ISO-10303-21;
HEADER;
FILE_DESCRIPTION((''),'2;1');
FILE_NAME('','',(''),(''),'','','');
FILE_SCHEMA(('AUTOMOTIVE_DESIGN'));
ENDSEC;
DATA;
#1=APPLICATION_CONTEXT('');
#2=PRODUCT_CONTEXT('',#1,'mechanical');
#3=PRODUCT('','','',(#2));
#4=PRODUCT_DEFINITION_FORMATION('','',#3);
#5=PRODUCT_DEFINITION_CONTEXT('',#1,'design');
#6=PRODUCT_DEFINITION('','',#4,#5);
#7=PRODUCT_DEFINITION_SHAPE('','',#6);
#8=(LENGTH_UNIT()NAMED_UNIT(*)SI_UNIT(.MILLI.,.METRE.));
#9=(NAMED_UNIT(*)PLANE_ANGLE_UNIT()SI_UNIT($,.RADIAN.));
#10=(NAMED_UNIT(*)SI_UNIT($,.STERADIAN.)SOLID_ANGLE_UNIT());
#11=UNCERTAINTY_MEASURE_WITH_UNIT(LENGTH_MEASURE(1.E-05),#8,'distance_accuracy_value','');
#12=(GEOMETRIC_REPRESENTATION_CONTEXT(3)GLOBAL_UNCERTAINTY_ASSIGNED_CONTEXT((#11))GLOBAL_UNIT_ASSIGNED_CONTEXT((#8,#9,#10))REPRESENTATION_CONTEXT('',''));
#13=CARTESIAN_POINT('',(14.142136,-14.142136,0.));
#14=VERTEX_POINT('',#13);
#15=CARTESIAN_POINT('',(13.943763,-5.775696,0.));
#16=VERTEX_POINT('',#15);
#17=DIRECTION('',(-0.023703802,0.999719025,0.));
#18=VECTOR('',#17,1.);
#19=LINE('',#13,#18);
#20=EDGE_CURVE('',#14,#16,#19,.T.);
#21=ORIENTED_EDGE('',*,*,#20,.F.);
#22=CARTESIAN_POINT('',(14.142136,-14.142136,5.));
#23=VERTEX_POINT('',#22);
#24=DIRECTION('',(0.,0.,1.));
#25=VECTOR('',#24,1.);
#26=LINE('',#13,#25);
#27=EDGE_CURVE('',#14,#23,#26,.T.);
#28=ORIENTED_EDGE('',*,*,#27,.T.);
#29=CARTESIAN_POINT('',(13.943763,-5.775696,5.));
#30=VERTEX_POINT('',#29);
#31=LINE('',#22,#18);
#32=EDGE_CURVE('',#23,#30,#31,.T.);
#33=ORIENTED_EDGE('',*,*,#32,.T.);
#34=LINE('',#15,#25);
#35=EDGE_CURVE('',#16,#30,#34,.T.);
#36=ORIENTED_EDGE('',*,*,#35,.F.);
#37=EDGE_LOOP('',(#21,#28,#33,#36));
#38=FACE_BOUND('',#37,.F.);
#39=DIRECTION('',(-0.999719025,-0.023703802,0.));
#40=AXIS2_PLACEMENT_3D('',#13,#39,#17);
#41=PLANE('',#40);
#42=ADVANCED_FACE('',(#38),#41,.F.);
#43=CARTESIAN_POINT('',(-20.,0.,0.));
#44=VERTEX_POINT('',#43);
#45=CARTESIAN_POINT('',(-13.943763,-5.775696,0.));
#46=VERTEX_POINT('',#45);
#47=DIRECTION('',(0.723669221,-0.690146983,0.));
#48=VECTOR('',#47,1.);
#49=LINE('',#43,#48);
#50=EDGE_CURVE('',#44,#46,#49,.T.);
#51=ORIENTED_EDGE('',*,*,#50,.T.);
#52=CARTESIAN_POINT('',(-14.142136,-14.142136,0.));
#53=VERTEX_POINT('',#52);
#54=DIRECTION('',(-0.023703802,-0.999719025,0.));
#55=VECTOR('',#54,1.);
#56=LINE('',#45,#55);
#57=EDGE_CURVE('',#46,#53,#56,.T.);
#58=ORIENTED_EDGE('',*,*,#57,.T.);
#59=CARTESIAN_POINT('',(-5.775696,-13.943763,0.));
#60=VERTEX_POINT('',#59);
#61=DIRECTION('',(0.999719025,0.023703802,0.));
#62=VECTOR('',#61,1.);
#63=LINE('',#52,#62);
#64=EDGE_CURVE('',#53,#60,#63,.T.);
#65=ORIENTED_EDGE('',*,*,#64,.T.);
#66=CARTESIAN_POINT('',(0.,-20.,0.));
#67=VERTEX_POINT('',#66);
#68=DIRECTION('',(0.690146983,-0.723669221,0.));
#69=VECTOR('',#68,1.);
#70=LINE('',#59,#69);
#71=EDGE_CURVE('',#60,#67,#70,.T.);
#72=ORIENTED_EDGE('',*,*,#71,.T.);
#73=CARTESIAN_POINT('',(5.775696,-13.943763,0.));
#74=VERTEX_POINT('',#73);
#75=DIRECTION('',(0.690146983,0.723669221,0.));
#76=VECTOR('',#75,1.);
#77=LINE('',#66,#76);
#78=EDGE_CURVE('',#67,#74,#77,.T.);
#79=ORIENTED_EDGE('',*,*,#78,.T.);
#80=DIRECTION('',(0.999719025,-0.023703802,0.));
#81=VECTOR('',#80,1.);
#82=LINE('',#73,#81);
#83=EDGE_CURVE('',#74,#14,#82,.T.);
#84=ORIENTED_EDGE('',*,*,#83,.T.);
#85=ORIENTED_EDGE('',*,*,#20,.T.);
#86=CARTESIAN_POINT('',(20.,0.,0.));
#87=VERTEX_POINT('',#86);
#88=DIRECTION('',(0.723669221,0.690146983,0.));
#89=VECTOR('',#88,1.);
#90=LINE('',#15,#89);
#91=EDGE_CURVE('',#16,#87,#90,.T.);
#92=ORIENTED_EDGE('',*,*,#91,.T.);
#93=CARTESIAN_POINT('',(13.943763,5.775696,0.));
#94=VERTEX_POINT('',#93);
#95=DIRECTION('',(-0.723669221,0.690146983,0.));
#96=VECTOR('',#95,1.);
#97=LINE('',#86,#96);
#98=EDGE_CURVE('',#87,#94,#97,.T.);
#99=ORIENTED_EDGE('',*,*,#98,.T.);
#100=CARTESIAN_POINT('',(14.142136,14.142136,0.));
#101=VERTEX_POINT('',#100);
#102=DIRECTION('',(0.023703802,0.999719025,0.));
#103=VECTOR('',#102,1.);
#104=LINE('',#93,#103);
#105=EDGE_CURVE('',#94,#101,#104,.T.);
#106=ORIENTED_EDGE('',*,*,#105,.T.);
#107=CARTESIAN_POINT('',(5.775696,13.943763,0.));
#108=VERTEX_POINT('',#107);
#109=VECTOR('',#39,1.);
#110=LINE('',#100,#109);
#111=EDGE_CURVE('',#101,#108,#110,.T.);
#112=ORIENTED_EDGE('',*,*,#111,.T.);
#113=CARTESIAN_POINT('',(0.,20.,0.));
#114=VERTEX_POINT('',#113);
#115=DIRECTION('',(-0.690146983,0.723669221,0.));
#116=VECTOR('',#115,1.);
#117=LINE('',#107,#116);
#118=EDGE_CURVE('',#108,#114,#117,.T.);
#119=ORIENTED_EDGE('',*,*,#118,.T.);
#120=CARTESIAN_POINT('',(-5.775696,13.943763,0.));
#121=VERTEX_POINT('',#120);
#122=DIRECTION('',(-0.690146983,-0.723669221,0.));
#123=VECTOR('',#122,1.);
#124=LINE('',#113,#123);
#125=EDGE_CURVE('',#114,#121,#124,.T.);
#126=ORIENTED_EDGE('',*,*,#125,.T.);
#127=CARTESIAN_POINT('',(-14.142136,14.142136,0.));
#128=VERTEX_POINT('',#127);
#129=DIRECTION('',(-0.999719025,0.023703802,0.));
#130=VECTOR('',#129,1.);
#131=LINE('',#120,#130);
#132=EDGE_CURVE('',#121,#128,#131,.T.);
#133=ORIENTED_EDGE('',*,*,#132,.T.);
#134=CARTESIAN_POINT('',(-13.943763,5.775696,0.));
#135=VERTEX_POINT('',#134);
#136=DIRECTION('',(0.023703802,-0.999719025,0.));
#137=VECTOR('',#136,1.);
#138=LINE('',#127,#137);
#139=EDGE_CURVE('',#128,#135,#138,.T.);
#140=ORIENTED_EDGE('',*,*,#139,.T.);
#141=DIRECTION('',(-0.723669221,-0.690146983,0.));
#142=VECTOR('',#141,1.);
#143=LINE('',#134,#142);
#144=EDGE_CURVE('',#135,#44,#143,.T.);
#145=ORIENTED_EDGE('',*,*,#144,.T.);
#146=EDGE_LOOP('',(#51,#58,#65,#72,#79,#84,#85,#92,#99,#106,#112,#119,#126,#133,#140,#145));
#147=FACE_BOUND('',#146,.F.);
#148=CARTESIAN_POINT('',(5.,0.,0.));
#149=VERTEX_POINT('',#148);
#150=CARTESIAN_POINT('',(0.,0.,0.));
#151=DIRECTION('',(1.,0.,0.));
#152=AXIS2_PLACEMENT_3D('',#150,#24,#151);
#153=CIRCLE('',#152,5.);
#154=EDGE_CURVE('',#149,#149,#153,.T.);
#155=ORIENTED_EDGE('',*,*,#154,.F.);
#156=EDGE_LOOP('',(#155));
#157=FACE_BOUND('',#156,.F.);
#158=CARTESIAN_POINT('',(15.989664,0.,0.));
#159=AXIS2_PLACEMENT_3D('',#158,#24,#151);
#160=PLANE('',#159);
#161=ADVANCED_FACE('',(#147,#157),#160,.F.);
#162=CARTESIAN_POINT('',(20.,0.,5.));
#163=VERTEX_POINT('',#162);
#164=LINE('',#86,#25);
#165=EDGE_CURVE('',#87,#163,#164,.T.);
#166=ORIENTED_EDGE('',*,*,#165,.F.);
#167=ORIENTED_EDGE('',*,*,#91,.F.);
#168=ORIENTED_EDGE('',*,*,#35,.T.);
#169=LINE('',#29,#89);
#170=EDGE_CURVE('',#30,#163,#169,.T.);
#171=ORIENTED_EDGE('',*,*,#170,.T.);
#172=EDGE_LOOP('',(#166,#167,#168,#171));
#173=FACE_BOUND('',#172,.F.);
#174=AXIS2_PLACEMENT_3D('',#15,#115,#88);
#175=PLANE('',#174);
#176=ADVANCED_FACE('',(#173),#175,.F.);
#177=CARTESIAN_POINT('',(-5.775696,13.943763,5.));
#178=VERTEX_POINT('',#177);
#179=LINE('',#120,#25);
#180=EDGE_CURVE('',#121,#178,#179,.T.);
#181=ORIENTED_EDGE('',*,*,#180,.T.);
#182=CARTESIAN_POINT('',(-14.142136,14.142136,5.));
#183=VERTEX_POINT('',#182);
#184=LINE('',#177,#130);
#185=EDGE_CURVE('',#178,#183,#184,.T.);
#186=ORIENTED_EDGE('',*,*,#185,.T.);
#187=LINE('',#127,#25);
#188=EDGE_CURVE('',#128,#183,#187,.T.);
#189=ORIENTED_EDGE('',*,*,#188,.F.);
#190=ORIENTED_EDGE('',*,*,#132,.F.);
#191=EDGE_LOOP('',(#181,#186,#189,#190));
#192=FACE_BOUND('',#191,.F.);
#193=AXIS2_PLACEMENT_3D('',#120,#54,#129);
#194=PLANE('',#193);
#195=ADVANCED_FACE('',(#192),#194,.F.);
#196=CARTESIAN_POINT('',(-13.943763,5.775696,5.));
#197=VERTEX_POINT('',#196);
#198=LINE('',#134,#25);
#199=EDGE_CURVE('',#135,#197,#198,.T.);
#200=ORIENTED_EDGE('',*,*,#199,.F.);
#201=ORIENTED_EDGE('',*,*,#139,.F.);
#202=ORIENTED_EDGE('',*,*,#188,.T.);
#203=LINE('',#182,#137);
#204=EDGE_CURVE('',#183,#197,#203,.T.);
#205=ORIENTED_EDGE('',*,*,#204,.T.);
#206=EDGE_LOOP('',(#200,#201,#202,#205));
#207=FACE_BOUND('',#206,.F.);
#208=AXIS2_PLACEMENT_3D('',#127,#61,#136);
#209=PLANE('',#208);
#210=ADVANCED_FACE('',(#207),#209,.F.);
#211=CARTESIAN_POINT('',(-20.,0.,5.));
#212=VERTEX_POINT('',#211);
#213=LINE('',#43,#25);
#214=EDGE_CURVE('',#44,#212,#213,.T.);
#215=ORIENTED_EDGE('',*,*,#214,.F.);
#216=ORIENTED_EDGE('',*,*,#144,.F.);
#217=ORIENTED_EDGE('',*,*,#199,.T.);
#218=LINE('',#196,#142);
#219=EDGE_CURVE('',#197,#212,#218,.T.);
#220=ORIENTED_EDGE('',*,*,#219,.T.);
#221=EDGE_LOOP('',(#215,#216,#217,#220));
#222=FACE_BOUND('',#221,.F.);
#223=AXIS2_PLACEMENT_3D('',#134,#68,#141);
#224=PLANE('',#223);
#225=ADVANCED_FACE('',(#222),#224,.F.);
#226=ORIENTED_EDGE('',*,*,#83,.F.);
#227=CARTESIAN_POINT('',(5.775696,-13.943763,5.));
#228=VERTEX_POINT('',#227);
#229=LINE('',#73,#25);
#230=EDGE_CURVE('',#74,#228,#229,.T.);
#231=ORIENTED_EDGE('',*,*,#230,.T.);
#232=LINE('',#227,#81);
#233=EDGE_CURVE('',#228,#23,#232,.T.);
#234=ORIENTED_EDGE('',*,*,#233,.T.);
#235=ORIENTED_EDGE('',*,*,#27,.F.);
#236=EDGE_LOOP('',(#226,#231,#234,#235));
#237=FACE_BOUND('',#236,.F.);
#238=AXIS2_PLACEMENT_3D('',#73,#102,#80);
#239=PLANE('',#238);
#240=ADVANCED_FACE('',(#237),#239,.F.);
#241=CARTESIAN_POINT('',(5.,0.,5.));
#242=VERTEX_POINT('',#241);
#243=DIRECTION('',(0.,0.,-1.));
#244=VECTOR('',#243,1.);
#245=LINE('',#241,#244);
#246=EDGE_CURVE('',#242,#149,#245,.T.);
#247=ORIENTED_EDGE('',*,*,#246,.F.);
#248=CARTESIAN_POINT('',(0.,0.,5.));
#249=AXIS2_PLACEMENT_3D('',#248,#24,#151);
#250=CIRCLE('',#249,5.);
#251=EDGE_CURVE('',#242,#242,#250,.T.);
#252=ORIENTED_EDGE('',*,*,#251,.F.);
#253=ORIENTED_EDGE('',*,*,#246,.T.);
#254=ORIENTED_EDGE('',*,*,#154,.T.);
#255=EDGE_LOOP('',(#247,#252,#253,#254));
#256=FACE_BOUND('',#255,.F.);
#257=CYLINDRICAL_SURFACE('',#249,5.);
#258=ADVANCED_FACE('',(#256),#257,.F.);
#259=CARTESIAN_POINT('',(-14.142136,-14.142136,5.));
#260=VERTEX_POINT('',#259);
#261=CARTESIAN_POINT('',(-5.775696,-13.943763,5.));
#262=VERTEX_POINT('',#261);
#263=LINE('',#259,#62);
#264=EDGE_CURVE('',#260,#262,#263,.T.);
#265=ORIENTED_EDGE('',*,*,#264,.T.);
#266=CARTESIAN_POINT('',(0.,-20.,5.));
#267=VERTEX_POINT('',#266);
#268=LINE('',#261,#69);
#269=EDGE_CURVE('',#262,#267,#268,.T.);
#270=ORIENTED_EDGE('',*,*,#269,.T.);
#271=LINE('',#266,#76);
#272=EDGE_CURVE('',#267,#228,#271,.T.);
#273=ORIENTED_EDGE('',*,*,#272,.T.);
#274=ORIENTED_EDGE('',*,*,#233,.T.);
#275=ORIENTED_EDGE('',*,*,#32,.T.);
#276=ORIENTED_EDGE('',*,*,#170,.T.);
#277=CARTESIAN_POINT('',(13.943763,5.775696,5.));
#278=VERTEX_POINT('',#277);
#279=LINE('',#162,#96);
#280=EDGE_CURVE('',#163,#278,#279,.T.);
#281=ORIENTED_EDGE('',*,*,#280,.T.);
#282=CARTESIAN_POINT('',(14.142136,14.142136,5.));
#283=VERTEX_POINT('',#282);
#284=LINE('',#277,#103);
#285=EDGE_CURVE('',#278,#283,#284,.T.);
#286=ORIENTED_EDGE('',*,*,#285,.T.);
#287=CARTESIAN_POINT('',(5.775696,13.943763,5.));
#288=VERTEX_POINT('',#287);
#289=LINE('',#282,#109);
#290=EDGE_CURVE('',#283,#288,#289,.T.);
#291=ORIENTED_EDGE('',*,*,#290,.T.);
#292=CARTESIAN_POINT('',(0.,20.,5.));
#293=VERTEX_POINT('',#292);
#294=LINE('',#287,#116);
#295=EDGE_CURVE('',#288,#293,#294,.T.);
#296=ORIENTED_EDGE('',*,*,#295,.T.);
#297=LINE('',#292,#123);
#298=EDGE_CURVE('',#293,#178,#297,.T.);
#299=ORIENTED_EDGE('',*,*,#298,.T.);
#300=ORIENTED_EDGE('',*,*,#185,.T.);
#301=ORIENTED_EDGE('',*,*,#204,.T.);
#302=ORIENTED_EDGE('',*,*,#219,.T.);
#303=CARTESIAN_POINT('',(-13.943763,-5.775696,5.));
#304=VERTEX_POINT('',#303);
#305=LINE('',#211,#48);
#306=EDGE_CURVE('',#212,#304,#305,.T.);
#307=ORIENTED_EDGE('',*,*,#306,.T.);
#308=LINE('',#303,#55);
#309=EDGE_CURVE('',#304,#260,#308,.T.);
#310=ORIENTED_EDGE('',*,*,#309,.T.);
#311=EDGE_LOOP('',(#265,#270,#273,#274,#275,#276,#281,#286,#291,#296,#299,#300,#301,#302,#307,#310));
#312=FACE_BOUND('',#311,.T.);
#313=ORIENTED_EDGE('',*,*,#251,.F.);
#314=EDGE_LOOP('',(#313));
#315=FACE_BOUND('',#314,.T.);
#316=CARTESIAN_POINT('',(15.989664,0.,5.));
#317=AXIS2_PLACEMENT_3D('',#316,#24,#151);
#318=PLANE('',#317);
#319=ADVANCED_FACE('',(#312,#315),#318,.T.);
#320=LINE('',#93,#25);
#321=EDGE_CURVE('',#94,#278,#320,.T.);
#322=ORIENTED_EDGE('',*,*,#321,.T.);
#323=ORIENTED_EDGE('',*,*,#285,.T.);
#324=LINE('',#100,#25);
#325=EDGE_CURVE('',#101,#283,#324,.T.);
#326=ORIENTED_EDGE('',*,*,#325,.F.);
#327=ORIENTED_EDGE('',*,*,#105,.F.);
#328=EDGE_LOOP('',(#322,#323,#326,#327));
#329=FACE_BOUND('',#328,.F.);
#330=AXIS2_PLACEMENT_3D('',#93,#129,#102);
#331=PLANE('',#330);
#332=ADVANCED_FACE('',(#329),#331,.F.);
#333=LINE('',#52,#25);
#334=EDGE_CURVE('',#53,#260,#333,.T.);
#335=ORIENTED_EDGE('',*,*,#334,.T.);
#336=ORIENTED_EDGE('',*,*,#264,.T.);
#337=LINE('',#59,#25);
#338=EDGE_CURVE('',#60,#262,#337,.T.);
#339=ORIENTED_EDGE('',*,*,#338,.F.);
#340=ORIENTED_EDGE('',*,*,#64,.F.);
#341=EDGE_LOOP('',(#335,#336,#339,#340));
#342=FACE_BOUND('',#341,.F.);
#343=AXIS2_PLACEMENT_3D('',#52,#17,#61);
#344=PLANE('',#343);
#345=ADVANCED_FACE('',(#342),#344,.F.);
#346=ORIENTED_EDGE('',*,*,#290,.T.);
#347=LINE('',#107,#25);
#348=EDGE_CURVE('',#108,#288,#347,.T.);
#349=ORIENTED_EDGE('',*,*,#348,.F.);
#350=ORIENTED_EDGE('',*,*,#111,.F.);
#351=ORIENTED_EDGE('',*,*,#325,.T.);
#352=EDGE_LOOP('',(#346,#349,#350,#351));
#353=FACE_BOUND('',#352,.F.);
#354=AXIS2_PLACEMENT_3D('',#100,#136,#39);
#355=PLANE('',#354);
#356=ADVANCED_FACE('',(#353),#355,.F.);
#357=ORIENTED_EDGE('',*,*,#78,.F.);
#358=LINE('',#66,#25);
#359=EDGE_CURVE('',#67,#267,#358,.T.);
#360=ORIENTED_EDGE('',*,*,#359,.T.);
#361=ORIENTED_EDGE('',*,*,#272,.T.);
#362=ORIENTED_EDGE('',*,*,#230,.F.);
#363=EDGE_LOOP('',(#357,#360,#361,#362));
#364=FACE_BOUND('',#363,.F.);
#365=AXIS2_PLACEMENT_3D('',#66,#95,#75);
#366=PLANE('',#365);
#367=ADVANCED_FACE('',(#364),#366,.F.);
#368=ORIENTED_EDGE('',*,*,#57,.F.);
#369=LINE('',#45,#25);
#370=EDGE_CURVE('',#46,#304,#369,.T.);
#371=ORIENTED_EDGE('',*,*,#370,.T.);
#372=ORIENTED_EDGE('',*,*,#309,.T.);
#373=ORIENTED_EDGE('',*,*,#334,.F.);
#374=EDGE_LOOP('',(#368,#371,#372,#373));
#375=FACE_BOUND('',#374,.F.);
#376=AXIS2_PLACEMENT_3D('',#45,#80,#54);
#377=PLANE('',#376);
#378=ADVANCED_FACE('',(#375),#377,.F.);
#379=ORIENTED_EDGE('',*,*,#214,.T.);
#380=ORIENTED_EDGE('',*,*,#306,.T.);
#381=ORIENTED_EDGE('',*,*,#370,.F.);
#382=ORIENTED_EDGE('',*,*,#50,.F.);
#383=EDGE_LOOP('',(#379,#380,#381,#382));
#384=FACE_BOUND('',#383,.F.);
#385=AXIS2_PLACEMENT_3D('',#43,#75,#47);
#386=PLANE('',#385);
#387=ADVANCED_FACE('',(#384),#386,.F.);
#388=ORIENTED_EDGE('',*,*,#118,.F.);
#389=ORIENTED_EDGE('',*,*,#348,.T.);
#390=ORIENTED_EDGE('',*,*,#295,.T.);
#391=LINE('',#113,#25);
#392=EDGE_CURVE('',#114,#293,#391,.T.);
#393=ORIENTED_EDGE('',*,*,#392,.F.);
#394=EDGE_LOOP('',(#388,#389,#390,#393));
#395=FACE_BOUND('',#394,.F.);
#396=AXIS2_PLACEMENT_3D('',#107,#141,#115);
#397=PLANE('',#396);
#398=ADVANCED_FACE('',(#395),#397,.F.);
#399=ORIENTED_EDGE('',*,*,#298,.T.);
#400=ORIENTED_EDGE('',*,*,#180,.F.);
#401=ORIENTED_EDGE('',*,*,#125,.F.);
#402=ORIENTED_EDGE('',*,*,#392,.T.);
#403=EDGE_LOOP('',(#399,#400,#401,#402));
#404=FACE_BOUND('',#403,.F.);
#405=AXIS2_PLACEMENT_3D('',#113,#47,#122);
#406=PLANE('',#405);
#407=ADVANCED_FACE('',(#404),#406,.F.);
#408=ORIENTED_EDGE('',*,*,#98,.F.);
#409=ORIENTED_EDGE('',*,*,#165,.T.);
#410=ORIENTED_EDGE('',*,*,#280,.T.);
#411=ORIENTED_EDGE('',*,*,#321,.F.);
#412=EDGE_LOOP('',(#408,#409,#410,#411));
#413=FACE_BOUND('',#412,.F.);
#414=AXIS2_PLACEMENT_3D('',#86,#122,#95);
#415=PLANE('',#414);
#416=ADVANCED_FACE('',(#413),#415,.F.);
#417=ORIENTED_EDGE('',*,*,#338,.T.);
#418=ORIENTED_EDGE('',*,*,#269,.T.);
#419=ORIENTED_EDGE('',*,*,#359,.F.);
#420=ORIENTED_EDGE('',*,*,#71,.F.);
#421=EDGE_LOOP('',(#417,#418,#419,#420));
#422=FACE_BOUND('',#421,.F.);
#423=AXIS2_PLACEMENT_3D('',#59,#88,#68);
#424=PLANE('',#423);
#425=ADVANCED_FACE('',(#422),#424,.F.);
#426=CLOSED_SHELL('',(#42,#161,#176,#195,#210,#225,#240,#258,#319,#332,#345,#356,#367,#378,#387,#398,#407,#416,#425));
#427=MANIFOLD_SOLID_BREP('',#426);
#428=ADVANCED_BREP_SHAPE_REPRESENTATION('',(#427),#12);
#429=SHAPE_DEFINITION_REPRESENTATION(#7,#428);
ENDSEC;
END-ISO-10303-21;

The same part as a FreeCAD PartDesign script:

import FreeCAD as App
import Part
import Sketcher
from FreeCAD import Vector
Q = App.Units.Quantity

doc = App.newDocument("Part")
body = doc.addObject("PartDesign::Body", "Body")

# Sketch on XY plane
sketch1 = doc.addObject("Sketcher::SketchObject", "Sketch")
body.addObject(sketch1)
sketch1.AttachmentSupport = (doc.XY_Plane, [""])
sketch1.MapMode = "FlatFace"
sketch1.addGeometry(Part.LineSegment(Vector(-14, -6, 0), Vector(-14, -14, 0)), False)
sketch1.addGeometry(Part.LineSegment(Vector(-14, -14, 0), Vector(-6, -14, 0)), False)
sketch1.addGeometry(Part.LineSegment(Vector(-6, -14, 0), Vector(0, -20, 0)), False)
sketch1.addGeometry(Part.LineSegment(Vector(0, -20, 0), Vector(6, -14, 0)), False)
sketch1.addGeometry(Part.LineSegment(Vector(6, -14, 0), Vector(14, -14, 0)), False)
sketch1.addGeometry(Part.LineSegment(Vector(14, -14, 0), Vector(14, -6, 0)), False)
sketch1.addGeometry(Part.LineSegment(Vector(14, -6, 0), Vector(20, 0, 0)), False)
sketch1.addGeometry(Part.LineSegment(Vector(20, 0, 0), Vector(14, 6, 0)), False)
sketch1.addGeometry(Part.LineSegment(Vector(14, 6, 0), Vector(14, 14, 0)), False)
sketch1.addGeometry(Part.LineSegment(Vector(14, 14, 0), Vector(6, 14, 0)), False)
sketch1.addGeometry(Part.LineSegment(Vector(6, 14, 0), Vector(0, 20, 0)), False)
sketch1.addGeometry(Part.LineSegment(Vector(0, 20, 0), Vector(-6, 14, 0)), False)
sketch1.addGeometry(Part.LineSegment(Vector(-6, 14, 0), Vector(-14, 14, 0)), False)
sketch1.addGeometry(Part.LineSegment(Vector(-14, 14, 0), Vector(-14, 6, 0)), False)
sketch1.addGeometry(Part.LineSegment(Vector(-14, 6, 0), Vector(-20, 0, 0)), False)
sketch1.addGeometry(Part.LineSegment(Vector(-20, 0, 0), Vector(-14, -6, 0)), False)
sketch1.addConstraint(Sketcher.Constraint("Coincident", 0, 2, 1, 1))
sketch1.addConstraint(Sketcher.Constraint("Coincident", 1, 2, 2, 1))
sketch1.addConstraint(Sketcher.Constraint("Coincident", 2, 2, 3, 1))
sketch1.addConstraint(Sketcher.Constraint("Coincident", 3, 2, 4, 1))
sketch1.addConstraint(Sketcher.Constraint("Coincident", 4, 2, 5, 1))
sketch1.addConstraint(Sketcher.Constraint("Coincident", 5, 2, 6, 1))
sketch1.addConstraint(Sketcher.Constraint("Coincident", 6, 2, 7, 1))
sketch1.addConstraint(Sketcher.Constraint("Coincident", 7, 2, 8, 1))
sketch1.addConstraint(Sketcher.Constraint("Coincident", 8, 2, 9, 1))
sketch1.addConstraint(Sketcher.Constraint("Coincident", 9, 2, 10, 1))
sketch1.addConstraint(Sketcher.Constraint("Coincident", 10, 2, 11, 1))
sketch1.addConstraint(Sketcher.Constraint("Coincident", 11, 2, 12, 1))
sketch1.addConstraint(Sketcher.Constraint("Coincident", 12, 2, 13, 1))
sketch1.addConstraint(Sketcher.Constraint("Coincident", 13, 2, 14, 1))
sketch1.addConstraint(Sketcher.Constraint("Coincident", 14, 2, 15, 1))
sketch1.addConstraint(Sketcher.Constraint("Coincident", 15, 2, 0, 1))
sketch1.addConstraint(Sketcher.Constraint("Symmetric", 0, 2, 8, 2, -1, 1))
sketch1.addConstraint(Sketcher.Constraint("Symmetric", 1, 2, 9, 2, -1, 1))
sketch1.addConstraint(Sketcher.Constraint("Symmetric", 2, 2, 10, 2, -1, 1))
sketch1.addConstraint(Sketcher.Constraint("Symmetric", 3, 2, 11, 2, -1, 1))
sketch1.addConstraint(Sketcher.Constraint("Symmetric", 4, 2, 12, 2, -1, 1))
sketch1.addConstraint(Sketcher.Constraint("Symmetric", 5, 2, 13, 2, -1, 1))
sketch1.addConstraint(Sketcher.Constraint("Symmetric", 6, 2, 14, 2, -1, 1))
sketch1.addConstraint(Sketcher.Constraint("Symmetric", 7, 2, 15, 2, -1, 1))
sketch1.addConstraint(Sketcher.Constraint("Symmetric", 1, 2, 3, 2, -2))
sketch1.addConstraint(Sketcher.Constraint("Symmetric", 0, 2, 4, 2, -2))
sketch1.addConstraint(Sketcher.Constraint("Symmetric", 7, 2, 13, 2, -2))
sketch1.addConstraint(Sketcher.Constraint("PointOnObject", 2, 2, -2))
sketch1.addConstraint(Sketcher.Constraint("PointOnObject", 6, 2, -1))
sketch1.addConstraint(Sketcher.Constraint("Perpendicular", 0, 4))
sketch1.addConstraint(Sketcher.Constraint("Perpendicular", 2, 6))
sketch1.addConstraint(Sketcher.Constraint("Equal", 0, 1))
sketch1.addConstraint(Sketcher.Constraint("Equal", 1, 2))
sketch1.addConstraint(Sketcher.Constraint("Equal", 5, 6))
sketch1.addConstraint(Sketcher.Constraint("DistanceY", 2, 2, -1, 1, Q("20 mm")))
sketch1.addConstraint(Sketcher.Constraint("DistanceX", 0, 2, 5, 2, Q("28.085899 mm")))
sketch1.addConstraint(Sketcher.Constraint("Distance", 0, Q("8.368791 mm")))
pad1 = doc.addObject("PartDesign::Pad", "Pad")
body.addObject(pad1)
pad1.Profile = sketch1
pad1.Length = 5

# Sketch on XY plane
sketch2 = doc.addObject("Sketcher::SketchObject", "Sketch001")
body.addObject(sketch2)
sketch2.AttachmentSupport = (doc.XY_Plane, [""])
sketch2.MapMode = "FlatFace"
sketch2.AttachmentOffset = App.Placement(Vector(0, 0, 5), App.Rotation())
sketch2.addGeometry(Part.Circle(Vector(0, 0, 0), Vector(0, 0, 1), 5), False)
sketch2.addConstraint(Sketcher.Constraint("Coincident", 0, 3, -1, 1))
sketch2.addConstraint(Sketcher.Constraint("Diameter", 0, Q("10 mm")))
pocket1 = doc.addObject("PartDesign::Pocket", "Pocket")
body.addObject(pocket1)
pocket1.Profile = sketch2
pocket1.Length = 25

doc.recompute()
